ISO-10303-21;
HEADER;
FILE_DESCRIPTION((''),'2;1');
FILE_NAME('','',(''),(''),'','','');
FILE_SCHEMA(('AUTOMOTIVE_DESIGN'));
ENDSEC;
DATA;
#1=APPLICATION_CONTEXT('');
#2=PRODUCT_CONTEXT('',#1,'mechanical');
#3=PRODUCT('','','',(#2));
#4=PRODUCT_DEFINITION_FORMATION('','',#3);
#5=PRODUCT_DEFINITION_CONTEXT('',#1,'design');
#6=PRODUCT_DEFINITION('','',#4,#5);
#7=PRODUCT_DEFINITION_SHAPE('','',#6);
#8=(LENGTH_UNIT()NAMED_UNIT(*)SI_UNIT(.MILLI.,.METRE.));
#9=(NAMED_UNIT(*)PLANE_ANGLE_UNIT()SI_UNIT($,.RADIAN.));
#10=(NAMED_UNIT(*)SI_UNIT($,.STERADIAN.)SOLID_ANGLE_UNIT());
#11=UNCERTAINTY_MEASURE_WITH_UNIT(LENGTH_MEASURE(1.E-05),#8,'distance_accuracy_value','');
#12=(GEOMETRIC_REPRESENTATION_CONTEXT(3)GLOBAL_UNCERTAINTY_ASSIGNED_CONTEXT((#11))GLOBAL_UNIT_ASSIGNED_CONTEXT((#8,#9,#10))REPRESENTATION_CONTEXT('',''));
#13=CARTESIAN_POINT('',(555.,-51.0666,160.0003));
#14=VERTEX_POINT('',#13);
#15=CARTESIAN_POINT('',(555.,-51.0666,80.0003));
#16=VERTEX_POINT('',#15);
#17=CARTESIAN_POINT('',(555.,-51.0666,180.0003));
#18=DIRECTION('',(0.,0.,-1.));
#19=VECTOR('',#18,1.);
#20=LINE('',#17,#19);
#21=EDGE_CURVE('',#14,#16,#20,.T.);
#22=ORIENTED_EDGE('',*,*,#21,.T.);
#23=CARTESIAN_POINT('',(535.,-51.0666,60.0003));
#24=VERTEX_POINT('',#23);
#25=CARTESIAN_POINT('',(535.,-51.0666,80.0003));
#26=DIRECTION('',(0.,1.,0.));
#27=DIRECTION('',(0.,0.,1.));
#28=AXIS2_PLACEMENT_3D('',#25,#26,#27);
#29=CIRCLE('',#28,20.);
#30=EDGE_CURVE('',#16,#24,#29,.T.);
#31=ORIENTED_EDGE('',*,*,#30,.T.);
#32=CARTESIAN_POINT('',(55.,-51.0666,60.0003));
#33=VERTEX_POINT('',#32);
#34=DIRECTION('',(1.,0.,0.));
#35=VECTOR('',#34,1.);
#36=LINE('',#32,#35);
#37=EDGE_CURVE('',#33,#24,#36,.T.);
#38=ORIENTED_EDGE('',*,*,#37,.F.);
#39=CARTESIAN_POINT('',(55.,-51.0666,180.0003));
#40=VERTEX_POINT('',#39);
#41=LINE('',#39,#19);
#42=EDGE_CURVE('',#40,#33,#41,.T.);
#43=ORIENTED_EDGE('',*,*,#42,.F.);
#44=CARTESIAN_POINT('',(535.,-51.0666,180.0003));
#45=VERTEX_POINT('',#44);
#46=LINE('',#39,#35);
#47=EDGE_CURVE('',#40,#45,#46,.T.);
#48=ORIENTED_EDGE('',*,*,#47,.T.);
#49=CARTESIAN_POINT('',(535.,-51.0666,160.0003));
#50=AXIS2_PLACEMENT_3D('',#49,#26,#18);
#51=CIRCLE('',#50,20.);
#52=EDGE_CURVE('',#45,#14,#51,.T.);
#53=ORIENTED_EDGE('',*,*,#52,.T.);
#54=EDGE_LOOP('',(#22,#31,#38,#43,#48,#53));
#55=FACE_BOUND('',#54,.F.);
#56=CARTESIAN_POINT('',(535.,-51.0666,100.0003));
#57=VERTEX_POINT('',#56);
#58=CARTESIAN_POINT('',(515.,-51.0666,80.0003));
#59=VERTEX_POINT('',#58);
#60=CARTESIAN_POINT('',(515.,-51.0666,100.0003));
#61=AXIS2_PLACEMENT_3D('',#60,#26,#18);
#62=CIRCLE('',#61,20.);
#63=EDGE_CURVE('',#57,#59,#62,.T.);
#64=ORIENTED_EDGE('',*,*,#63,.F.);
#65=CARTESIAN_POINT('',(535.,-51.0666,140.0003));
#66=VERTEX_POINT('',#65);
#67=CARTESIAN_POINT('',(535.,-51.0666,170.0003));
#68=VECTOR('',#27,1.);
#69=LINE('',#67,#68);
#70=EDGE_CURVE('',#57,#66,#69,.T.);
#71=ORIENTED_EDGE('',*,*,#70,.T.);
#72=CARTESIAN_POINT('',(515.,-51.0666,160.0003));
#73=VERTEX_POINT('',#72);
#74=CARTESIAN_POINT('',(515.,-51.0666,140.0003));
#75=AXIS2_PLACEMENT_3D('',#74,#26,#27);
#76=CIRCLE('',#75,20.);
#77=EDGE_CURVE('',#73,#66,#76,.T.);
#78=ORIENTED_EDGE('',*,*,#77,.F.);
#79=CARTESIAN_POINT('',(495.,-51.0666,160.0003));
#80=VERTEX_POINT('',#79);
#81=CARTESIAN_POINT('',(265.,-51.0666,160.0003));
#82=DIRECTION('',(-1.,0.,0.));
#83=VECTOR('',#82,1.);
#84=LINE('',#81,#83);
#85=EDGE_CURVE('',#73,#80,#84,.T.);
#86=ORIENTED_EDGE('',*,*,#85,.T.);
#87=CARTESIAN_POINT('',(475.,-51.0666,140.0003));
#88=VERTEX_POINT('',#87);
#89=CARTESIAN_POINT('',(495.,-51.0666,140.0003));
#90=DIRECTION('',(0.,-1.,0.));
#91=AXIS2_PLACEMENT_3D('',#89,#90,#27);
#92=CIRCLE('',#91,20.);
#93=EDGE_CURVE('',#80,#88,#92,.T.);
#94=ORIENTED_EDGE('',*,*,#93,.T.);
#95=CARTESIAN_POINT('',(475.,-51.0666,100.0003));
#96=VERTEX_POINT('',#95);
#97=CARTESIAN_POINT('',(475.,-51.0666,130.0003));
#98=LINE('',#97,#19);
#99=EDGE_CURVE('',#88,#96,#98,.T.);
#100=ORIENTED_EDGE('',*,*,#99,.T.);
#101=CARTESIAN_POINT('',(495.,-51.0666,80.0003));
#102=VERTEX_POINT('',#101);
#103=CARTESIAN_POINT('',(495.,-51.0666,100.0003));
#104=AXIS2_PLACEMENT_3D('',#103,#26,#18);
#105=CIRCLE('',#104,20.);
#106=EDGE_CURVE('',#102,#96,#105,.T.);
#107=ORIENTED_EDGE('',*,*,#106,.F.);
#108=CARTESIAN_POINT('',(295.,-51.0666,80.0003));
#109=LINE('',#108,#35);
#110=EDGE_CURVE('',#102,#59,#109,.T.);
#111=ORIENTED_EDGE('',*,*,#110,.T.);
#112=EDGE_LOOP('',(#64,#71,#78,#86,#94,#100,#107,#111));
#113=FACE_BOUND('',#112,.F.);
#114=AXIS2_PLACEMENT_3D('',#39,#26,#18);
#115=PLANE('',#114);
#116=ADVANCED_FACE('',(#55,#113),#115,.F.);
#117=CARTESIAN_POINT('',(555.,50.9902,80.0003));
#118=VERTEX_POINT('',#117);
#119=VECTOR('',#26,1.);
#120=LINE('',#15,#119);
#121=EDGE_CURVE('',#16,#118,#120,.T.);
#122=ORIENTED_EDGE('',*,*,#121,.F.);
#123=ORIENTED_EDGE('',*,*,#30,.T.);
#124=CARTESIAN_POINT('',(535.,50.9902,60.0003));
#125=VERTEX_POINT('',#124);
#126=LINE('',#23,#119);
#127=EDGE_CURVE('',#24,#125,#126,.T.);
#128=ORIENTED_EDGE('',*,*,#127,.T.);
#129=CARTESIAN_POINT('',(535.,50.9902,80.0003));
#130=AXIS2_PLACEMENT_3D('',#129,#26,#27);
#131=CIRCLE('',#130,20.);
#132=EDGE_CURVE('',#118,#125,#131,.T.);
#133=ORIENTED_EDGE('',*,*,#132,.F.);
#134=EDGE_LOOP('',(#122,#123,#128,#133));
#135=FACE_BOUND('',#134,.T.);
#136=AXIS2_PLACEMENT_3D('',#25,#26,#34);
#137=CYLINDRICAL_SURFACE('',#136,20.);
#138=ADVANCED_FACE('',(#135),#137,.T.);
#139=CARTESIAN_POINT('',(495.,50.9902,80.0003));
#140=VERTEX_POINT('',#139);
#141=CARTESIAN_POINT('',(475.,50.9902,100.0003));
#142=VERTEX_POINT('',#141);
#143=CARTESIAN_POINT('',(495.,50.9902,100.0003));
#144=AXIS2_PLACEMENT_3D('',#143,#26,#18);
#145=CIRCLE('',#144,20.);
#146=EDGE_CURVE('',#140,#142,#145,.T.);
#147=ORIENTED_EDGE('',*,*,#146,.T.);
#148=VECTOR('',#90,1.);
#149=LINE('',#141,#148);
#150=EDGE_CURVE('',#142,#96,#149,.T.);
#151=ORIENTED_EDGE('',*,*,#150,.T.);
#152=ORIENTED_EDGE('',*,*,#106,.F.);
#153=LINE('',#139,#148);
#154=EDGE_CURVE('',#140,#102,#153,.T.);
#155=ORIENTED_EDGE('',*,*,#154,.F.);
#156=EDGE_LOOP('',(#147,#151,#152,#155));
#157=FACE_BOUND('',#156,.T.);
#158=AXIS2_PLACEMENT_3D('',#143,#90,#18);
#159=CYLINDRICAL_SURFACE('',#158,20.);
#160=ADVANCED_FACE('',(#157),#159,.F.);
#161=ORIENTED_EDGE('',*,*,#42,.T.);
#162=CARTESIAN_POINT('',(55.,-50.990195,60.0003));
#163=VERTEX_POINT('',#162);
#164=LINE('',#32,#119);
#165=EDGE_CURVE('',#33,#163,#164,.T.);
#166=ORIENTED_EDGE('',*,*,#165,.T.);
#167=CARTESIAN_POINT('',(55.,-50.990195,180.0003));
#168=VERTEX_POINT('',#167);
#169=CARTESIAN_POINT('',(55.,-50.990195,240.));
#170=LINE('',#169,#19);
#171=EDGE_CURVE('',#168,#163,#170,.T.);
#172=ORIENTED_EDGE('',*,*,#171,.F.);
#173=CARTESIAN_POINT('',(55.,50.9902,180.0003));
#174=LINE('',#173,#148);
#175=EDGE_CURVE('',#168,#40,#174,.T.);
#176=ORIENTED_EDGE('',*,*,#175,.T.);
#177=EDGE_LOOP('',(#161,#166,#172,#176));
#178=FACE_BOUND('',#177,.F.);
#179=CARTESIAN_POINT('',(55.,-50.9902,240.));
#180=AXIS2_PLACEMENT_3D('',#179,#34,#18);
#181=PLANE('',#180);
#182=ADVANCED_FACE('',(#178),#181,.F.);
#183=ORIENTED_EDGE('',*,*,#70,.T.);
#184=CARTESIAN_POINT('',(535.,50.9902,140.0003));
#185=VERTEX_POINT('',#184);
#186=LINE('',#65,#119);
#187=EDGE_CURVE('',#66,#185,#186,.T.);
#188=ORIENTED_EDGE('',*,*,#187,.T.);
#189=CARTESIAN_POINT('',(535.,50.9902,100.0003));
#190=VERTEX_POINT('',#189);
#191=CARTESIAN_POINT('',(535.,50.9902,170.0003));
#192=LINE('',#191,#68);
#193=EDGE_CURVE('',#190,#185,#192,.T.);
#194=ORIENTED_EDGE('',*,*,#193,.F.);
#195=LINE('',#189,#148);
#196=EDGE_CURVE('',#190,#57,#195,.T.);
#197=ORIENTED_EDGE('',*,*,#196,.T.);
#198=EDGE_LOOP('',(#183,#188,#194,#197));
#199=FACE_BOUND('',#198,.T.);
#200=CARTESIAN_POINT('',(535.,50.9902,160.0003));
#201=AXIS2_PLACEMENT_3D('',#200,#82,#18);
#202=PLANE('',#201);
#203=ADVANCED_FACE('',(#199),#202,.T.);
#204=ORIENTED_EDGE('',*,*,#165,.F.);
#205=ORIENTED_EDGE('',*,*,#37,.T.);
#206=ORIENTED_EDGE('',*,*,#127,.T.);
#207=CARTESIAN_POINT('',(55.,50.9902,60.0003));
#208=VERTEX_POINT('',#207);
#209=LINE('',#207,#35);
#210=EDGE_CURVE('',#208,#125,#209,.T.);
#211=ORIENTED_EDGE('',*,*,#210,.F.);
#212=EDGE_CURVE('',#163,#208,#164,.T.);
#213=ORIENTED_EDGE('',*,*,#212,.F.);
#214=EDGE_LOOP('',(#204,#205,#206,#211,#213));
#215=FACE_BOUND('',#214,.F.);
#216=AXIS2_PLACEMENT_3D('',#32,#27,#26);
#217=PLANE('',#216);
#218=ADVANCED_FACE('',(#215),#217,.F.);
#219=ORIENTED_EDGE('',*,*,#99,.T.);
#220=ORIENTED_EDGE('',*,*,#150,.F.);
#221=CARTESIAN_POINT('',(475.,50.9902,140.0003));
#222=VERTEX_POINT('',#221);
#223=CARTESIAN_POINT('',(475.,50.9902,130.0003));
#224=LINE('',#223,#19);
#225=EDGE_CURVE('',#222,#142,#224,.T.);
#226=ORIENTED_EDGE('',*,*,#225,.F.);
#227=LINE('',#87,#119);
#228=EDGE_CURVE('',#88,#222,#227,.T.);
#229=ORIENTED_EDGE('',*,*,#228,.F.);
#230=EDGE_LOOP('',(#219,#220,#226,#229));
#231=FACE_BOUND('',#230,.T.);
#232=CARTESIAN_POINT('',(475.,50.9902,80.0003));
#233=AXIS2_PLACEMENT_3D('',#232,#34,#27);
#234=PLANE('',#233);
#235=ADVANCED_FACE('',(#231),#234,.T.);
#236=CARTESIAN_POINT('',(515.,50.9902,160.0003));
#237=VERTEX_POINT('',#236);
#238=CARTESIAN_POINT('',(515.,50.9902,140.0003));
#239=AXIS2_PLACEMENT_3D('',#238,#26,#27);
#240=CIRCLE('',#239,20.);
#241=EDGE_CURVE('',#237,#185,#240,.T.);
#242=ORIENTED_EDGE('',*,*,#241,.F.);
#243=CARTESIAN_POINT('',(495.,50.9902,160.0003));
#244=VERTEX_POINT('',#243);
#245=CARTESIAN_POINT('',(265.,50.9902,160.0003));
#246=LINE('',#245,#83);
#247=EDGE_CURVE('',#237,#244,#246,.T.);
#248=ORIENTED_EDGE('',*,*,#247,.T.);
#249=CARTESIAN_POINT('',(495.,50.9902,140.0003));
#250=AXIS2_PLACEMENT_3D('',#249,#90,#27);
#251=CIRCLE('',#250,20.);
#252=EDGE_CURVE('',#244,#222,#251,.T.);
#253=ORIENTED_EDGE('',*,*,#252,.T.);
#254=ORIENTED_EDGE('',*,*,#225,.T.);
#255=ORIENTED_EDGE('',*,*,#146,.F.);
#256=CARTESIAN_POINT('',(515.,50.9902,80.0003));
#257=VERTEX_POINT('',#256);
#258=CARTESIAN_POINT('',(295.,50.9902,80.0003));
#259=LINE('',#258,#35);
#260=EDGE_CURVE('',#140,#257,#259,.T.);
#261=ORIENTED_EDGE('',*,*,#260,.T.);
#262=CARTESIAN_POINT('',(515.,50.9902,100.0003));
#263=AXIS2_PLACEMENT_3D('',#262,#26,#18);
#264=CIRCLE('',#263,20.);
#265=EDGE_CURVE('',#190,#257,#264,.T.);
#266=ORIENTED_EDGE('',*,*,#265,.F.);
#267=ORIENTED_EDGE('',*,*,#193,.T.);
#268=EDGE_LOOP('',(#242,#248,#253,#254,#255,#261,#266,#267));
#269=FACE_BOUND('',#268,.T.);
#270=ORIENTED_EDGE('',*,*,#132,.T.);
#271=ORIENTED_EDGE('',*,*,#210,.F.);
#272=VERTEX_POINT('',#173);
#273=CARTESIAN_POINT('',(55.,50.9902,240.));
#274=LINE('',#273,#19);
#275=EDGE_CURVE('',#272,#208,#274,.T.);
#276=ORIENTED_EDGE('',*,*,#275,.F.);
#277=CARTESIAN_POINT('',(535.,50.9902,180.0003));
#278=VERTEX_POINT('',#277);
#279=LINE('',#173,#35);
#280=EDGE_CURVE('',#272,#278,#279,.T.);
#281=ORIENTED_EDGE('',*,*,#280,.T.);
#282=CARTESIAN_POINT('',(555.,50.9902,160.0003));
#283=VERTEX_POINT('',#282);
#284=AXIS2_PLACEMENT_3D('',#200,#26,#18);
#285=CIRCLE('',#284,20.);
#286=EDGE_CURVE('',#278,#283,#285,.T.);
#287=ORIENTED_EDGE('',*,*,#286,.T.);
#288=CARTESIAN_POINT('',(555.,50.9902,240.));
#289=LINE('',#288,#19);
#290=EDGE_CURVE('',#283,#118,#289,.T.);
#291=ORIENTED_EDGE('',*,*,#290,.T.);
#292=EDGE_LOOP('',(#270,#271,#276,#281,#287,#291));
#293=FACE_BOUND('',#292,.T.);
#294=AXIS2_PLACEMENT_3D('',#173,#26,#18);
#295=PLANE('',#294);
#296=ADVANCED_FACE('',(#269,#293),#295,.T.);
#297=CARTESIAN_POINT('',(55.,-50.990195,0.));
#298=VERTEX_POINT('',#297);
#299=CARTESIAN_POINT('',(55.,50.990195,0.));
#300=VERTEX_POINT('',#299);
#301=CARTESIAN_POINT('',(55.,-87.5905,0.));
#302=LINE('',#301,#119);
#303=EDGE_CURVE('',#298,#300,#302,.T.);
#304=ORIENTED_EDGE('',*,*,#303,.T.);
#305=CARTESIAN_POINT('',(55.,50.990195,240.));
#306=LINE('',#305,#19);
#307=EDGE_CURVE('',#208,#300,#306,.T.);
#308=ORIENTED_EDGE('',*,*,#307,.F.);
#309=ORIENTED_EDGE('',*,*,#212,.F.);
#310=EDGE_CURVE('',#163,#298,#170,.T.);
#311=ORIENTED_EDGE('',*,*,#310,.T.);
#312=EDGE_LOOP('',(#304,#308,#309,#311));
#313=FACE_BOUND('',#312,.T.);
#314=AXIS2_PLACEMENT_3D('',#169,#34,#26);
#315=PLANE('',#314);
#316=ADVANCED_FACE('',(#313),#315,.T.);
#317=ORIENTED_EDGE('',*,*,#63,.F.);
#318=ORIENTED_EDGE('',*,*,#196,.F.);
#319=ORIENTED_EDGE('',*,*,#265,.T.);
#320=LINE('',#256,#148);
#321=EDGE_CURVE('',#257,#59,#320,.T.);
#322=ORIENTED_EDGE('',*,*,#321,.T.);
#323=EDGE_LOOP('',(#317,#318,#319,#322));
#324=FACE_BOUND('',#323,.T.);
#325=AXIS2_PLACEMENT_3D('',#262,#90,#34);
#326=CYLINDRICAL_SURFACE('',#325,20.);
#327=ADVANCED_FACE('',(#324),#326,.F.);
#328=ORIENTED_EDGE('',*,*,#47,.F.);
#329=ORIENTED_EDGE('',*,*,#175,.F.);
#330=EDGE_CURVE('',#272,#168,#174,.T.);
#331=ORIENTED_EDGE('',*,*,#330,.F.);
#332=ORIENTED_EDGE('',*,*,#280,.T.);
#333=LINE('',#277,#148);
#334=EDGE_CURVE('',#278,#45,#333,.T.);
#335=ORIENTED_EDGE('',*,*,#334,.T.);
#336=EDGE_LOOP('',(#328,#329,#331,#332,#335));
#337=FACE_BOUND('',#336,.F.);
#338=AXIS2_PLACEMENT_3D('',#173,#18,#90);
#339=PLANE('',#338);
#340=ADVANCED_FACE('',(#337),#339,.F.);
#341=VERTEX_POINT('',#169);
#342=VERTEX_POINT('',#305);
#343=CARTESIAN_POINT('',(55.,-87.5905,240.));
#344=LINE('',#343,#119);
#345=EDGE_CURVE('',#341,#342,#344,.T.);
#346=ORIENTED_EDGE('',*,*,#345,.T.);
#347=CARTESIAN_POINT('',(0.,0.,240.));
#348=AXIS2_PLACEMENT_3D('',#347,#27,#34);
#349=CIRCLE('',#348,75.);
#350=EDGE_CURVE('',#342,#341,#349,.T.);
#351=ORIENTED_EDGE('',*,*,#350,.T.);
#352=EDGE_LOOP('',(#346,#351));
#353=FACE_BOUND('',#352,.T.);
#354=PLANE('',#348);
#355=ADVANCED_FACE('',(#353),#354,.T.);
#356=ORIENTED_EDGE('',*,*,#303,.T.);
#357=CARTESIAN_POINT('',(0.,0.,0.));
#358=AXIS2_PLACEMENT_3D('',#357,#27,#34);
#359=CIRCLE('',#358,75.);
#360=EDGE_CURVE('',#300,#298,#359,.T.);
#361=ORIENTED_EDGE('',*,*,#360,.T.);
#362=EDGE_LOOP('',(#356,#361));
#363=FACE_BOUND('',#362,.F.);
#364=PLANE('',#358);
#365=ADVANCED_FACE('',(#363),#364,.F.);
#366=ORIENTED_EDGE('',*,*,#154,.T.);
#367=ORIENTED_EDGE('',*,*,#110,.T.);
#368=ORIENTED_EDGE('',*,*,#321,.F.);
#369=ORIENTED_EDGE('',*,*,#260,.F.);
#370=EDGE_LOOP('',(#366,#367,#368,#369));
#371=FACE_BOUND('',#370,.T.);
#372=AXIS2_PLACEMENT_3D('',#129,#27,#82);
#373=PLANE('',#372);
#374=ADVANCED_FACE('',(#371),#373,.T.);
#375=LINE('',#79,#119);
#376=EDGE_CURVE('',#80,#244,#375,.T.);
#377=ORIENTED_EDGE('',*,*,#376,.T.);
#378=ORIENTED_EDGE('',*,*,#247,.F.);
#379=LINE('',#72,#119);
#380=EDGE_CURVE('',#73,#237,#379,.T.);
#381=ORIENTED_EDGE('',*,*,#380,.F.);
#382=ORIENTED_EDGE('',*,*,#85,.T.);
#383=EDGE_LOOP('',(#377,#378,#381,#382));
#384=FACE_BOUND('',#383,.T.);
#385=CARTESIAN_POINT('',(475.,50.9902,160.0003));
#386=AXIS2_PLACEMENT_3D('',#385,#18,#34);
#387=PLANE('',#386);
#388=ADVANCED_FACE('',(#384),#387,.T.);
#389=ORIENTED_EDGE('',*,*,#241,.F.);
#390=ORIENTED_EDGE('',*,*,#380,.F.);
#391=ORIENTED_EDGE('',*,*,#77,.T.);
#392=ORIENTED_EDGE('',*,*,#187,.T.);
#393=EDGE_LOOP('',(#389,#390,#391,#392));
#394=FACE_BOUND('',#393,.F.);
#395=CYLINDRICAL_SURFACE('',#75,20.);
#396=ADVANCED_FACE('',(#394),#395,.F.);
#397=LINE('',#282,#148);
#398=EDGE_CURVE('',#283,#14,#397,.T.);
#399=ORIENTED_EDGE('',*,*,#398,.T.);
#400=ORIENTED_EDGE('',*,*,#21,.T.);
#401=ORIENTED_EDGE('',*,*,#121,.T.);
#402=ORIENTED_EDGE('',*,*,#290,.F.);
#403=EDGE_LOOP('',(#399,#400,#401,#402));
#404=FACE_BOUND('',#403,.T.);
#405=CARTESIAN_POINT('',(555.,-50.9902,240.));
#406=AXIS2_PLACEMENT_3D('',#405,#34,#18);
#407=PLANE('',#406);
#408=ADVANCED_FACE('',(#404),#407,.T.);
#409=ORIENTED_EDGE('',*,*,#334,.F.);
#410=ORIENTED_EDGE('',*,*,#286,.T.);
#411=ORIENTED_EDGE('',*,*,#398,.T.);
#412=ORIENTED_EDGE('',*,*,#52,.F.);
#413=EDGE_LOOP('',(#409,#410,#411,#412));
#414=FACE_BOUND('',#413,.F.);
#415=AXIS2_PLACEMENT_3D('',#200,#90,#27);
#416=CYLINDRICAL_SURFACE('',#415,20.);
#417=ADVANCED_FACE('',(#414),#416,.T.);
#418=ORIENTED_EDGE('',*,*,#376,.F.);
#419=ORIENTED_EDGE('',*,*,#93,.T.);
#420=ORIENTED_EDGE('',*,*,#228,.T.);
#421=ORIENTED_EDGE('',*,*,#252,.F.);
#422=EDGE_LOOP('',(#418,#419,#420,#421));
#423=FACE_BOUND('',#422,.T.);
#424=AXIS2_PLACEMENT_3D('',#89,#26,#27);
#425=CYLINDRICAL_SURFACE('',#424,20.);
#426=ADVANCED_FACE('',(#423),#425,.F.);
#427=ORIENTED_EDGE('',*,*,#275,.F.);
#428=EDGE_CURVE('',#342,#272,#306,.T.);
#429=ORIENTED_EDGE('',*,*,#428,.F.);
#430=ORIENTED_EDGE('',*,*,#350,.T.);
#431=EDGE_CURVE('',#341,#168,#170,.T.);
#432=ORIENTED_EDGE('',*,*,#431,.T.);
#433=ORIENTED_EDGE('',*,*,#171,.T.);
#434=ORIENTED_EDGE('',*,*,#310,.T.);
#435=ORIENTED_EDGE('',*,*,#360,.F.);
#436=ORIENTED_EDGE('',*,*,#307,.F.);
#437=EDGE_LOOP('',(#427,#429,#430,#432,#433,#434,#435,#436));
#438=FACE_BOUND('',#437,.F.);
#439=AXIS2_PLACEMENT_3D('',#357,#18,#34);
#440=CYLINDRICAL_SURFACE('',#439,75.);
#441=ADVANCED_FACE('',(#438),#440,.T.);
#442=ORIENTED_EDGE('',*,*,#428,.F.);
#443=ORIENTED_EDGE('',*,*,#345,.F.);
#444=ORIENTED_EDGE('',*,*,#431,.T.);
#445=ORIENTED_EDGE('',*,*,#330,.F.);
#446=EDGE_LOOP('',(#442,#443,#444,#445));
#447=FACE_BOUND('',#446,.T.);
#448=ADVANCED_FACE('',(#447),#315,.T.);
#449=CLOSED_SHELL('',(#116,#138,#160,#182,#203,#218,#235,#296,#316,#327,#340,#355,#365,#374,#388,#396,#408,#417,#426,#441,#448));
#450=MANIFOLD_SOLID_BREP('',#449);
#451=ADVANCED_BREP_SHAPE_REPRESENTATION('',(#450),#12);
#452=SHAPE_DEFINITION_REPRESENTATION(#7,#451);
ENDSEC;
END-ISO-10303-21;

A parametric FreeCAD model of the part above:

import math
import FreeCAD as App
import Part
import Sketcher
from FreeCAD import Vector


def edges_at(feature, points):
    """Names of the edges that pass closest to the given points."""
    edges = feature.Shape.Edges
    near = lambda p: min(range(len(edges)), key=lambda i: edges[i].distToShape(Part.Vertex(*p))[0])
    return sorted({f"Edge{near(p) + 1}" for p in points})


def add_polygon(sketch, points):
    """Adds a closed chain of lines whose ends are joined by coincident constraints."""
    first, n = sketch.GeometryCount, len(points)
    for a, b in zip(points, points[1:] + points[:1]):
        sketch.addGeometry(Part.LineSegment(App.Vector(*a, 0), App.Vector(*b, 0)), False)
    for i in range(n):
        sketch.addConstraint(Sketcher.Constraint("Coincident", first + i, 2, first + (i + 1) % n, 1))

doc = App.newDocument("Part")
body = doc.addObject("PartDesign::Body", "Body")

# Sketch on XY plane
sketch1 = body.newObject("Sketcher::SketchObject", "Sketch")
sketch1.AttachmentSupport = (doc.getObject("XY_Plane"), [""])
sketch1.MapMode = "FlatFace"
sketch1.addGeometry(Part.Circle(Vector(0, 0, 0), Vector(0, 0, 1), 75), False)
sketch1.addConstraint([
    Sketcher.Constraint("Coincident", 0, 3, -1, 1),
    Sketcher.Constraint("Diameter", 0, 150.0),
])
pad1 = body.newObject("PartDesign::Pad", "Pad")
pad1.Profile = sketch1
pad1.Length = 240

# Sketch on XY plane
sketch2 = body.newObject("Sketcher::SketchObject", "Sketch001")
sketch2.AttachmentSupport = (doc.getObject("XY_Plane"), [""])
sketch2.MapMode = "FlatFace"
sketch2.AttachmentOffset = App.Placement(Vector(0, 0, 240), App.Rotation())
sketch2.addGeometry([
    Part.LineSegment(Vector(55, 51, 0), Vector(55, -51, 0)),
    Part.ArcOfCircle(Part.Circle(Vector(0, 0, 0), Vector(0, 0, 1), 75), math.radians(-43), math.radians(43)),
], False)
sketch2.addConstraint([
    Sketcher.Constraint("Coincident", 0, 1, 1, 2),
    Sketcher.Constraint("Coincident", 1, 1, 0, 2),
    Sketcher.Constraint("Vertical", 0),
    Sketcher.Constraint("Coincident", 1, 3, -1, 1),
    Sketcher.Constraint("Radius", 1, 75.0),
    Sketcher.Constraint("DistanceX", -1, 1, 0, 1, 55.0),
])
pocket1 = body.newObject("PartDesign::Pocket", "Pocket")
pocket1.Profile = sketch2
pocket1.Length = 240

# Sketch on YZ plane
sketch3 = body.newObject("Sketcher::SketchObject", "Sketch002")
sketch3.AttachmentSupport = (doc.getObject("YZ_Plane"), [""])
sketch3.MapMode = "FlatFace"
sketch3.AttachmentOffset = App.Placement(Vector(0, 0, 55), App.Rotation())
add_polygon(sketch3, [(51, 60), (51, 180), (-51, 180), (-51, 60)])  # lines 0-3
sketch3.addConstraint([
    Sketcher.Constraint("Vertical", 0),
    Sketcher.Constraint("Horizontal", 1),
    Sketcher.Constraint("Vertical", 2),
    Sketcher.Constraint("Horizontal", 3),
    Sketcher.Constraint("DistanceY", 0, 1, 0, 2, 120.0),
    Sketcher.Constraint("DistanceX", 1, 2, 1, 1, 102.0568),
    Sketcher.Constraint("DistanceY", -1, 1, 2, 2, 60.0003),
    Sketcher.Constraint("DistanceX", -1, 1, 0, 2, 50.9902),
])
pad2 = body.newObject("PartDesign::Pad", "Pad001")
pad2.Profile = sketch3
pad2.Length = 500

# Sketch on XZ plane
sketch4 = body.newObject("Sketcher::SketchObject", "Sketch003")
sketch4.AttachmentSupport = (doc.getObject("XZ_Plane"), [""])
sketch4.MapMode = "FlatFace"
sketch4.AttachmentOffset = App.Placement(Vector(0, 0, -50.9902), App.Rotation())
add_polygon(sketch4, [(475, 80), (475, 160), (535, 160), (535, 80)])  # lines 0-3
sketch4.addConstraint([
    Sketcher.Constraint("Vertical", 0),
    Sketcher.Constraint("Horizontal", 1),
    Sketcher.Constraint("Vertical", 2),
    Sketcher.Constraint("Horizontal", 3),
    Sketcher.Constraint("DistanceX", 1, 1, 1, 2, 60.0),
    Sketcher.Constraint("DistanceY", 0, 1, 0, 2, 80.0),
    Sketcher.Constraint("DistanceX", -1, 1, 0, 2, 475.0),
    Sketcher.Constraint("DistanceY", -1, 1, 2, 2, 80.0003),
])
pocket2 = body.newObject("PartDesign::Pocket", "Pocket001")
pocket2.Profile = sketch4
pocket2.Length = 500
pocket2.Midplane = True
doc.recompute()

fillet = body.newObject("PartDesign::Fillet", "Fillet")
fillet.Base = (pocket2, edges_at(pocket2, [(555, -0.038, 60), (555, -0.038, 180)]))
fillet.Radius = 20
doc.recompute()

fillet2 = body.newObject("PartDesign::Fillet", "Fillet001")
fillet2.Base = (fillet, edges_at(fillet, [
    (535, -0.038, 160),
    (535, -0.038, 80),
    (475, -0.038, 160),
    (475, -0.038, 80),
]))
fillet2.Radius = 20

doc.recompute()
